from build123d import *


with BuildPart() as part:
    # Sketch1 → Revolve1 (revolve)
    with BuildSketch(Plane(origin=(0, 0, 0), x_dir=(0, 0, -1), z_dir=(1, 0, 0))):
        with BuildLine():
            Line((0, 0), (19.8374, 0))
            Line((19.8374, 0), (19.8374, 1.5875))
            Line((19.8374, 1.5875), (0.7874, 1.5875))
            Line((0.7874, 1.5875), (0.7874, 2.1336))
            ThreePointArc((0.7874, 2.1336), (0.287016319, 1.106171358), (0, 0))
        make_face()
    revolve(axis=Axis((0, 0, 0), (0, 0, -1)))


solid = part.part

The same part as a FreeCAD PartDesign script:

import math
import FreeCAD as App
import Part
import Sketcher

V = App.Vector
Q = App.Units.Quantity

doc = App.newDocument("Part")
params = doc.addObject("Spreadsheet::Sheet", "Params")
for row, (alias, value) in enumerate([
    ("sketch1_height", "0.75 in"),
    ("sketch1_width", "0.0625 in"),
    ("sketch1_height2", "0.781 in"),
    ("revolution_angle", "360 deg"),
], start=1):
    params.set(f"A{row}", alias)
    params.set(f"B{row}", "=" + value)
    params.setAlias(f"B{row}", alias)

body = doc.addObject("PartDesign::Body", "Body")

# Sketch on YZ plane
sketch1 = body.newObject("Sketcher::SketchObject", "Sketch")
sketch1.AttachmentSupport = (doc.getObject("YZ_Plane"), [""])
sketch1.MapMode = "FlatFace"
sketch1.addGeometry(Part.LineSegment(V(0, 0, 0), V(0, -19.8, 0)), False)
sketch1.addGeometry(Part.LineSegment(V(0, -19.8, 0), V(1.6, -19.8, 0)), False)
sketch1.addGeometry(Part.LineSegment(V(1.6, -19.8, 0), V(1.6, -0.8, 0)), False)
sketch1.addGeometry(Part.LineSegment(V(1.6, -0.8, 0), V(2.1, -0.8, 0)), False)
sketch1.addGeometry(Part.ArcOfCircle(Part.Circle(V(-0.9, -5.7, 0), V(0, 0, 1), 5.7), math.radians(58), math.radians(81)), False)
sketch1.addConstraint(Sketcher.Constraint("Coincident", 0, 2, 1, 1))
sketch1.addConstraint(Sketcher.Constraint("Coincident", 1, 2, 2, 1))
sketch1.addConstraint(Sketcher.Constraint("Coincident", 2, 2, 3, 1))
sketch1.addConstraint(Sketcher.Constraint("Coincident", 3, 2, 4, 1))
sketch1.addConstraint(Sketcher.Constraint("Coincident", 4, 2, 0, 1))
sketch1.addConstraint(Sketcher.Constraint("Vertical", 0))
sketch1.addConstraint(Sketcher.Constraint("Horizontal", 1))
sketch1.addConstraint(Sketcher.Constraint("Vertical", 2))
sketch1.addConstraint(Sketcher.Constraint("Horizontal", 3))
sketch1.addConstraint(Sketcher.Constraint("Coincident", 4, 2, -1, 1))
sketch1.addConstraint(Sketcher.Constraint("DistanceY", 2, 1, 2, 2, Q("0.75 in")))
sketch1.addConstraint(Sketcher.Constraint("DistanceX", 1, 1, 1, 2, Q("0.0625 in")))
sketch1.addConstraint(Sketcher.Constraint("DistanceY", 0, 2, 0, 1, Q("0.781 in")))
sketch1.addConstraint(Sketcher.Constraint("DistanceX", 3, 1, 3, 2, Q("0.0215 in")))
sketch1.addConstraint(Sketcher.Constraint("Radius", 4, Q("5.742306 mm")))
sketch1.setExpression("Constraints[10]", "Params.sketch1_height")
sketch1.setExpression("Constraints[11]", "Params.sketch1_width")
sketch1.setExpression("Constraints[12]", "Params.sketch1_height2")
revolution = body.newObject("PartDesign::Revolution", "Revolution")
revolution.Profile = sketch1
revolution.ReferenceAxis = (sketch1, ["V_Axis"])
revolution.setExpression("Angle", "Params.revolution_angle")

doc.recompute()
